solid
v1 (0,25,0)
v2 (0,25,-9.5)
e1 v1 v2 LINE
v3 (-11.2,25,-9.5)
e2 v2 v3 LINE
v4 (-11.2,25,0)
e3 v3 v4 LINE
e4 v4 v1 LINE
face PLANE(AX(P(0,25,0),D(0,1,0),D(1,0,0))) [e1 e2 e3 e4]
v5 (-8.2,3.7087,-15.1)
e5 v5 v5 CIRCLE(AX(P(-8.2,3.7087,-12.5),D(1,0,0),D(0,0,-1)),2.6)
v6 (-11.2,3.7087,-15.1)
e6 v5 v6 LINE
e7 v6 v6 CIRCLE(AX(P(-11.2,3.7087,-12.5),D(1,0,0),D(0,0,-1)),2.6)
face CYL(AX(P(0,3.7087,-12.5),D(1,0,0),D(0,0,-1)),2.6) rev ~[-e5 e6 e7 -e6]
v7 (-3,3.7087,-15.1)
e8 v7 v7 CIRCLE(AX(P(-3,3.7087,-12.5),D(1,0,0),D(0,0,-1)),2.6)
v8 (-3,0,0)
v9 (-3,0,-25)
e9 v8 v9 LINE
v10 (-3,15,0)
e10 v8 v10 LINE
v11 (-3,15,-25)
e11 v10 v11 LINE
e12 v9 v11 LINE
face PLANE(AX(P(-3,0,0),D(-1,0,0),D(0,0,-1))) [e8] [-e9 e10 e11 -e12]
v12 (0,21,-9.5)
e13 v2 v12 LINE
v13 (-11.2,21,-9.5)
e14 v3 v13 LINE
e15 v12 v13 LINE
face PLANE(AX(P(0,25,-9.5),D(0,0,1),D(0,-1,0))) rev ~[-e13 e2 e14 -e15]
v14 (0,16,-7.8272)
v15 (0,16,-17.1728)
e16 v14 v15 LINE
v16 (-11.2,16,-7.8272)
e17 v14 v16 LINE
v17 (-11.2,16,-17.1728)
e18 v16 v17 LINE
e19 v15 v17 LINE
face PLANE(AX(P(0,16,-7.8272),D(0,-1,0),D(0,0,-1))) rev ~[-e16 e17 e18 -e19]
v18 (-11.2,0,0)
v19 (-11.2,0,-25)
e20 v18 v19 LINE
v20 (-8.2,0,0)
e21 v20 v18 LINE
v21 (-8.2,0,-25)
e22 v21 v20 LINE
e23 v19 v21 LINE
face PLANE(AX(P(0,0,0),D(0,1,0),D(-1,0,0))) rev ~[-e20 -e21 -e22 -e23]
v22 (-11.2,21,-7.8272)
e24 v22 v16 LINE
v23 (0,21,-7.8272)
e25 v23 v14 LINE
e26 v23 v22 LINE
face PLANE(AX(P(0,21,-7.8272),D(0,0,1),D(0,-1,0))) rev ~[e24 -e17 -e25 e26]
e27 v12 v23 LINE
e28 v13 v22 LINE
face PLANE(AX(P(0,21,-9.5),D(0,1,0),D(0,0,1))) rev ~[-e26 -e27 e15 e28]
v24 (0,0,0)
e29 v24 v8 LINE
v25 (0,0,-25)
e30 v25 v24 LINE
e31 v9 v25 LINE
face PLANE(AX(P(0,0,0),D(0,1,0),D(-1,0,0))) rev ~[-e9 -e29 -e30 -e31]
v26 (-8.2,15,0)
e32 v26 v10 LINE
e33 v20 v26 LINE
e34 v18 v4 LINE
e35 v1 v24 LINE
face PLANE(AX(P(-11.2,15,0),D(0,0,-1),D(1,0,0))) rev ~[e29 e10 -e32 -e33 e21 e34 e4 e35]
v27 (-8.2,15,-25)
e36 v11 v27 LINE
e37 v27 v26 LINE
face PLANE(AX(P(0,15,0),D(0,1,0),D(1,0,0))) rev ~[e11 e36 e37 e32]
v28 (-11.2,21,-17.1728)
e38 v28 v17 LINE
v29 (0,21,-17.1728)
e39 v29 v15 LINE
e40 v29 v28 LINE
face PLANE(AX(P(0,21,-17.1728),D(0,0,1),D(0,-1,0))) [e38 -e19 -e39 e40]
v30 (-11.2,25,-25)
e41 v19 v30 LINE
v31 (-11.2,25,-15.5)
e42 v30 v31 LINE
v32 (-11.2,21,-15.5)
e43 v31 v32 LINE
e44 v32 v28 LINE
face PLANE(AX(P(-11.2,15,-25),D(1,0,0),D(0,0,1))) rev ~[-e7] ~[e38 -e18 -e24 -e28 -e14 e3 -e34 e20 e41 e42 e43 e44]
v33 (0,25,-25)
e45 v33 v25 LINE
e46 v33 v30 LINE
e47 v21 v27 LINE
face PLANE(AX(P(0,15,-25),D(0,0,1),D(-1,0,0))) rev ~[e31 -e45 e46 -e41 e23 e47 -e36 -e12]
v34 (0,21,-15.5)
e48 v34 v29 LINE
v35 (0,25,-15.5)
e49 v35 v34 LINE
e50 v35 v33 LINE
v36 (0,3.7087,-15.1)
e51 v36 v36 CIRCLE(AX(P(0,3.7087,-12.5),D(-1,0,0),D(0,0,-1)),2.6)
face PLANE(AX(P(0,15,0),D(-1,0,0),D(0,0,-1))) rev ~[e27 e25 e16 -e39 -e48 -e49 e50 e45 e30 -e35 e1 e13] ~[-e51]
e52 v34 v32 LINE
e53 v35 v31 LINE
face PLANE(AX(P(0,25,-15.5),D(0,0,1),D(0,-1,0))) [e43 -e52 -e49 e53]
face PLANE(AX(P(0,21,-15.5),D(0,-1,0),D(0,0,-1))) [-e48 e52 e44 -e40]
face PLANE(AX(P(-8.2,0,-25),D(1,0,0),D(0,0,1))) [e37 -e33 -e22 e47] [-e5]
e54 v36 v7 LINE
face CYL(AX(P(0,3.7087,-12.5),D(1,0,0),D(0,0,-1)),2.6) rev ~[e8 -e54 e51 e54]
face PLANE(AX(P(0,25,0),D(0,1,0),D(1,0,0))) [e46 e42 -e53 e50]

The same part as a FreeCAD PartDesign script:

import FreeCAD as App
import Part
import Sketcher

V = App.Vector


def add_polygon(sketch, points):
    """Adds a closed chain of lines whose ends are joined by coincident constraints."""
    first, n = sketch.GeometryCount, len(points)
    for a, b in zip(points, points[1:] + points[:1]):
        sketch.addGeometry(Part.LineSegment(App.Vector(*a, 0), App.Vector(*b, 0)), False)
    for i in range(n):
        sketch.addConstraint(Sketcher.Constraint("Coincident", first + i, 2, first + (i + 1) % n, 1))

doc = App.newDocument("Part")
body = doc.addObject("PartDesign::Body", "Body")
body.AllowCompound = True

sketch1 = doc.addObject("Sketcher::SketchObject", "Sketch")
body.addObject(sketch1)
sketch1.AttachmentSupport = (doc.XZ_Plane, [""])
sketch1.MapMode = "FlatFace"
add_polygon(sketch1, [(-3, 0), (0, 0), (0, -25), (-3, -25)])
add_polygon(sketch1, [(-11.2, 0), (-8.2, 0), (-8.2, -25), (-11.2, -25)])
sketch1.addConstraint(Sketcher.Constraint("Horizontal", 0))
sketch1.addConstraint(Sketcher.Constraint("Vertical", 1))
sketch1.addConstraint(Sketcher.Constraint("Horizontal", 2))
sketch1.addConstraint(Sketcher.Constraint("Vertical", 3))
sketch1.addConstraint(Sketcher.Constraint("Horizontal", 4))
sketch1.addConstraint(Sketcher.Constraint("Vertical", 5))
sketch1.addConstraint(Sketcher.Constraint("Horizontal", 6))
sketch1.addConstraint(Sketcher.Constraint("Vertical", 7))
sketch1.addConstraint(Sketcher.Constraint("Coincident", 0, 2, -1, 1))
sketch1.addConstraint(Sketcher.Constraint("PointOnObject", 4, 2, -1))
sketch1.addConstraint(Sketcher.Constraint("Horizontal", 2, 2, 5, 2))
sketch1.addConstraint(Sketcher.Constraint("Equal", 2, 4))
sketch1.addConstraint(Sketcher.Constraint("DistanceX", 0, 1, 0, 2, 3.0))
sketch1.addConstraint(Sketcher.Constraint("DistanceY", 1, 2, 1, 1, 25.0))
sketch1.addConstraint(Sketcher.Constraint("DistanceX", 4, 2, 3, 2, 5.2))
pad1 = doc.addObject("PartDesign::Pad", "Pad")
body.addObject(pad1)
pad1.Profile = sketch1
pad1.Length = 15
pad1.Reversed = True

sketch2 = doc.addObject("Sketcher::SketchObject", "Sketch001")
body.addObject(sketch2)
sketch2.AttachmentSupport = (doc.XZ_Plane, [""])
sketch2.MapMode = "FlatFace"
sketch2.AttachmentOffset = App.Placement(V(0, 0, -15), App.Rotation())
add_polygon(sketch2, [(0, -25), (-11, -25), (-11, 0), (0, 0)])
sketch2.addConstraint(Sketcher.Constraint("Horizontal", 0))
sketch2.addConstraint(Sketcher.Constraint("Vertical", 1))
sketch2.addConstraint(Sketcher.Constraint("Horizontal", 2))
sketch2.addConstraint(Sketcher.Constraint("Vertical", 3))
sketch2.addConstraint(Sketcher.Constraint("Coincident", 2, 2, -1, 1))
sketch2.addConstraint(Sketcher.Constraint("DistanceY", 1, 1, 1, 2, 25.0))
sketch2.addConstraint(Sketcher.Constraint("DistanceX", 0, 2, 0, 1, 11.2))
pad2 = doc.addObject("PartDesign::Pad", "Pad001")
body.addObject(pad2)
pad2.Profile = sketch2
pad2.Length = 10
pad2.Reversed = True

sketch3 = doc.addObject("Sketcher::SketchObject", "Sketch002")
body.addObject(sketch3)
sketch3.AttachmentSupport = (doc.YZ_Plane, [""])
sketch3.MapMode = "FlatFace"
sketch3.addGeometry(Part.Circle(V(3.7, -12.5, 0), V(0, 0, 1), 2.6), False)
add_polygon(sketch3, [(25, -9.5), (21, -9.5), (21, -7.8), (16, -7.8), (16, -17.2), (21, -17.2), (21, -15.5), (25, -15.5)])
sketch3.addConstraint(Sketcher.Constraint("Horizontal", 1))
sketch3.addConstraint(Sketcher.Constraint("Vertical", 2))
sketch3.addConstraint(Sketcher.Constraint("Horizontal", 3))
sketch3.addConstraint(Sketcher.Constraint("Vertical", 4))
sketch3.addConstraint(Sketcher.Constraint("Horizontal", 5))
sketch3.addConstraint(Sketcher.Constraint("Vertical", 6))
sketch3.addConstraint(Sketcher.Constraint("Horizontal", 7))
sketch3.addConstraint(Sketcher.Constraint("Vertical", 8))
sketch3.addConstraint(Sketcher.Constraint("Vertical", 2, 2, 5, 2))
sketch3.addConstraint(Sketcher.Constraint("Equal", 2, 6))
sketch3.addConstraint(Sketcher.Constraint("Diameter", 0, 5.2))
sketch3.addConstraint(Sketcher.Constraint("DistanceX", 3, 2, 3, 1, 5.0))
sketch3.addConstraint(Sketcher.Constraint("DistanceY", 8, 1, 8, 2, 6.0))
sketch3.addConstraint(Sketcher.Constraint("DistanceX", 1, 2, 1, 1, 4.0))
sketch3.addConstraint(Sketcher.Constraint("DistanceX", -1, 1, 1, 2, 21.0))
sketch3.addConstraint(Sketcher.Constraint("DistanceY", 0, 3, 1, 2, 3.0))
sketch3.addConstraint(Sketcher.Constraint("DistanceY", 0, 3, -1, 1, 12.5))
sketch3.addConstraint(Sketcher.Constraint("DistanceY", 2, 1, 2, 2, 1.6728))
sketch3.addConstraint(Sketcher.Constraint("DistanceX", -1, 1, 0, 3, 3.7087))
pocket1 = doc.addObject("PartDesign::Pocket", "Pocket")
body.addObject(pocket1)
pocket1.Profile = sketch3
pocket1.Length = 20

doc.recompute()
